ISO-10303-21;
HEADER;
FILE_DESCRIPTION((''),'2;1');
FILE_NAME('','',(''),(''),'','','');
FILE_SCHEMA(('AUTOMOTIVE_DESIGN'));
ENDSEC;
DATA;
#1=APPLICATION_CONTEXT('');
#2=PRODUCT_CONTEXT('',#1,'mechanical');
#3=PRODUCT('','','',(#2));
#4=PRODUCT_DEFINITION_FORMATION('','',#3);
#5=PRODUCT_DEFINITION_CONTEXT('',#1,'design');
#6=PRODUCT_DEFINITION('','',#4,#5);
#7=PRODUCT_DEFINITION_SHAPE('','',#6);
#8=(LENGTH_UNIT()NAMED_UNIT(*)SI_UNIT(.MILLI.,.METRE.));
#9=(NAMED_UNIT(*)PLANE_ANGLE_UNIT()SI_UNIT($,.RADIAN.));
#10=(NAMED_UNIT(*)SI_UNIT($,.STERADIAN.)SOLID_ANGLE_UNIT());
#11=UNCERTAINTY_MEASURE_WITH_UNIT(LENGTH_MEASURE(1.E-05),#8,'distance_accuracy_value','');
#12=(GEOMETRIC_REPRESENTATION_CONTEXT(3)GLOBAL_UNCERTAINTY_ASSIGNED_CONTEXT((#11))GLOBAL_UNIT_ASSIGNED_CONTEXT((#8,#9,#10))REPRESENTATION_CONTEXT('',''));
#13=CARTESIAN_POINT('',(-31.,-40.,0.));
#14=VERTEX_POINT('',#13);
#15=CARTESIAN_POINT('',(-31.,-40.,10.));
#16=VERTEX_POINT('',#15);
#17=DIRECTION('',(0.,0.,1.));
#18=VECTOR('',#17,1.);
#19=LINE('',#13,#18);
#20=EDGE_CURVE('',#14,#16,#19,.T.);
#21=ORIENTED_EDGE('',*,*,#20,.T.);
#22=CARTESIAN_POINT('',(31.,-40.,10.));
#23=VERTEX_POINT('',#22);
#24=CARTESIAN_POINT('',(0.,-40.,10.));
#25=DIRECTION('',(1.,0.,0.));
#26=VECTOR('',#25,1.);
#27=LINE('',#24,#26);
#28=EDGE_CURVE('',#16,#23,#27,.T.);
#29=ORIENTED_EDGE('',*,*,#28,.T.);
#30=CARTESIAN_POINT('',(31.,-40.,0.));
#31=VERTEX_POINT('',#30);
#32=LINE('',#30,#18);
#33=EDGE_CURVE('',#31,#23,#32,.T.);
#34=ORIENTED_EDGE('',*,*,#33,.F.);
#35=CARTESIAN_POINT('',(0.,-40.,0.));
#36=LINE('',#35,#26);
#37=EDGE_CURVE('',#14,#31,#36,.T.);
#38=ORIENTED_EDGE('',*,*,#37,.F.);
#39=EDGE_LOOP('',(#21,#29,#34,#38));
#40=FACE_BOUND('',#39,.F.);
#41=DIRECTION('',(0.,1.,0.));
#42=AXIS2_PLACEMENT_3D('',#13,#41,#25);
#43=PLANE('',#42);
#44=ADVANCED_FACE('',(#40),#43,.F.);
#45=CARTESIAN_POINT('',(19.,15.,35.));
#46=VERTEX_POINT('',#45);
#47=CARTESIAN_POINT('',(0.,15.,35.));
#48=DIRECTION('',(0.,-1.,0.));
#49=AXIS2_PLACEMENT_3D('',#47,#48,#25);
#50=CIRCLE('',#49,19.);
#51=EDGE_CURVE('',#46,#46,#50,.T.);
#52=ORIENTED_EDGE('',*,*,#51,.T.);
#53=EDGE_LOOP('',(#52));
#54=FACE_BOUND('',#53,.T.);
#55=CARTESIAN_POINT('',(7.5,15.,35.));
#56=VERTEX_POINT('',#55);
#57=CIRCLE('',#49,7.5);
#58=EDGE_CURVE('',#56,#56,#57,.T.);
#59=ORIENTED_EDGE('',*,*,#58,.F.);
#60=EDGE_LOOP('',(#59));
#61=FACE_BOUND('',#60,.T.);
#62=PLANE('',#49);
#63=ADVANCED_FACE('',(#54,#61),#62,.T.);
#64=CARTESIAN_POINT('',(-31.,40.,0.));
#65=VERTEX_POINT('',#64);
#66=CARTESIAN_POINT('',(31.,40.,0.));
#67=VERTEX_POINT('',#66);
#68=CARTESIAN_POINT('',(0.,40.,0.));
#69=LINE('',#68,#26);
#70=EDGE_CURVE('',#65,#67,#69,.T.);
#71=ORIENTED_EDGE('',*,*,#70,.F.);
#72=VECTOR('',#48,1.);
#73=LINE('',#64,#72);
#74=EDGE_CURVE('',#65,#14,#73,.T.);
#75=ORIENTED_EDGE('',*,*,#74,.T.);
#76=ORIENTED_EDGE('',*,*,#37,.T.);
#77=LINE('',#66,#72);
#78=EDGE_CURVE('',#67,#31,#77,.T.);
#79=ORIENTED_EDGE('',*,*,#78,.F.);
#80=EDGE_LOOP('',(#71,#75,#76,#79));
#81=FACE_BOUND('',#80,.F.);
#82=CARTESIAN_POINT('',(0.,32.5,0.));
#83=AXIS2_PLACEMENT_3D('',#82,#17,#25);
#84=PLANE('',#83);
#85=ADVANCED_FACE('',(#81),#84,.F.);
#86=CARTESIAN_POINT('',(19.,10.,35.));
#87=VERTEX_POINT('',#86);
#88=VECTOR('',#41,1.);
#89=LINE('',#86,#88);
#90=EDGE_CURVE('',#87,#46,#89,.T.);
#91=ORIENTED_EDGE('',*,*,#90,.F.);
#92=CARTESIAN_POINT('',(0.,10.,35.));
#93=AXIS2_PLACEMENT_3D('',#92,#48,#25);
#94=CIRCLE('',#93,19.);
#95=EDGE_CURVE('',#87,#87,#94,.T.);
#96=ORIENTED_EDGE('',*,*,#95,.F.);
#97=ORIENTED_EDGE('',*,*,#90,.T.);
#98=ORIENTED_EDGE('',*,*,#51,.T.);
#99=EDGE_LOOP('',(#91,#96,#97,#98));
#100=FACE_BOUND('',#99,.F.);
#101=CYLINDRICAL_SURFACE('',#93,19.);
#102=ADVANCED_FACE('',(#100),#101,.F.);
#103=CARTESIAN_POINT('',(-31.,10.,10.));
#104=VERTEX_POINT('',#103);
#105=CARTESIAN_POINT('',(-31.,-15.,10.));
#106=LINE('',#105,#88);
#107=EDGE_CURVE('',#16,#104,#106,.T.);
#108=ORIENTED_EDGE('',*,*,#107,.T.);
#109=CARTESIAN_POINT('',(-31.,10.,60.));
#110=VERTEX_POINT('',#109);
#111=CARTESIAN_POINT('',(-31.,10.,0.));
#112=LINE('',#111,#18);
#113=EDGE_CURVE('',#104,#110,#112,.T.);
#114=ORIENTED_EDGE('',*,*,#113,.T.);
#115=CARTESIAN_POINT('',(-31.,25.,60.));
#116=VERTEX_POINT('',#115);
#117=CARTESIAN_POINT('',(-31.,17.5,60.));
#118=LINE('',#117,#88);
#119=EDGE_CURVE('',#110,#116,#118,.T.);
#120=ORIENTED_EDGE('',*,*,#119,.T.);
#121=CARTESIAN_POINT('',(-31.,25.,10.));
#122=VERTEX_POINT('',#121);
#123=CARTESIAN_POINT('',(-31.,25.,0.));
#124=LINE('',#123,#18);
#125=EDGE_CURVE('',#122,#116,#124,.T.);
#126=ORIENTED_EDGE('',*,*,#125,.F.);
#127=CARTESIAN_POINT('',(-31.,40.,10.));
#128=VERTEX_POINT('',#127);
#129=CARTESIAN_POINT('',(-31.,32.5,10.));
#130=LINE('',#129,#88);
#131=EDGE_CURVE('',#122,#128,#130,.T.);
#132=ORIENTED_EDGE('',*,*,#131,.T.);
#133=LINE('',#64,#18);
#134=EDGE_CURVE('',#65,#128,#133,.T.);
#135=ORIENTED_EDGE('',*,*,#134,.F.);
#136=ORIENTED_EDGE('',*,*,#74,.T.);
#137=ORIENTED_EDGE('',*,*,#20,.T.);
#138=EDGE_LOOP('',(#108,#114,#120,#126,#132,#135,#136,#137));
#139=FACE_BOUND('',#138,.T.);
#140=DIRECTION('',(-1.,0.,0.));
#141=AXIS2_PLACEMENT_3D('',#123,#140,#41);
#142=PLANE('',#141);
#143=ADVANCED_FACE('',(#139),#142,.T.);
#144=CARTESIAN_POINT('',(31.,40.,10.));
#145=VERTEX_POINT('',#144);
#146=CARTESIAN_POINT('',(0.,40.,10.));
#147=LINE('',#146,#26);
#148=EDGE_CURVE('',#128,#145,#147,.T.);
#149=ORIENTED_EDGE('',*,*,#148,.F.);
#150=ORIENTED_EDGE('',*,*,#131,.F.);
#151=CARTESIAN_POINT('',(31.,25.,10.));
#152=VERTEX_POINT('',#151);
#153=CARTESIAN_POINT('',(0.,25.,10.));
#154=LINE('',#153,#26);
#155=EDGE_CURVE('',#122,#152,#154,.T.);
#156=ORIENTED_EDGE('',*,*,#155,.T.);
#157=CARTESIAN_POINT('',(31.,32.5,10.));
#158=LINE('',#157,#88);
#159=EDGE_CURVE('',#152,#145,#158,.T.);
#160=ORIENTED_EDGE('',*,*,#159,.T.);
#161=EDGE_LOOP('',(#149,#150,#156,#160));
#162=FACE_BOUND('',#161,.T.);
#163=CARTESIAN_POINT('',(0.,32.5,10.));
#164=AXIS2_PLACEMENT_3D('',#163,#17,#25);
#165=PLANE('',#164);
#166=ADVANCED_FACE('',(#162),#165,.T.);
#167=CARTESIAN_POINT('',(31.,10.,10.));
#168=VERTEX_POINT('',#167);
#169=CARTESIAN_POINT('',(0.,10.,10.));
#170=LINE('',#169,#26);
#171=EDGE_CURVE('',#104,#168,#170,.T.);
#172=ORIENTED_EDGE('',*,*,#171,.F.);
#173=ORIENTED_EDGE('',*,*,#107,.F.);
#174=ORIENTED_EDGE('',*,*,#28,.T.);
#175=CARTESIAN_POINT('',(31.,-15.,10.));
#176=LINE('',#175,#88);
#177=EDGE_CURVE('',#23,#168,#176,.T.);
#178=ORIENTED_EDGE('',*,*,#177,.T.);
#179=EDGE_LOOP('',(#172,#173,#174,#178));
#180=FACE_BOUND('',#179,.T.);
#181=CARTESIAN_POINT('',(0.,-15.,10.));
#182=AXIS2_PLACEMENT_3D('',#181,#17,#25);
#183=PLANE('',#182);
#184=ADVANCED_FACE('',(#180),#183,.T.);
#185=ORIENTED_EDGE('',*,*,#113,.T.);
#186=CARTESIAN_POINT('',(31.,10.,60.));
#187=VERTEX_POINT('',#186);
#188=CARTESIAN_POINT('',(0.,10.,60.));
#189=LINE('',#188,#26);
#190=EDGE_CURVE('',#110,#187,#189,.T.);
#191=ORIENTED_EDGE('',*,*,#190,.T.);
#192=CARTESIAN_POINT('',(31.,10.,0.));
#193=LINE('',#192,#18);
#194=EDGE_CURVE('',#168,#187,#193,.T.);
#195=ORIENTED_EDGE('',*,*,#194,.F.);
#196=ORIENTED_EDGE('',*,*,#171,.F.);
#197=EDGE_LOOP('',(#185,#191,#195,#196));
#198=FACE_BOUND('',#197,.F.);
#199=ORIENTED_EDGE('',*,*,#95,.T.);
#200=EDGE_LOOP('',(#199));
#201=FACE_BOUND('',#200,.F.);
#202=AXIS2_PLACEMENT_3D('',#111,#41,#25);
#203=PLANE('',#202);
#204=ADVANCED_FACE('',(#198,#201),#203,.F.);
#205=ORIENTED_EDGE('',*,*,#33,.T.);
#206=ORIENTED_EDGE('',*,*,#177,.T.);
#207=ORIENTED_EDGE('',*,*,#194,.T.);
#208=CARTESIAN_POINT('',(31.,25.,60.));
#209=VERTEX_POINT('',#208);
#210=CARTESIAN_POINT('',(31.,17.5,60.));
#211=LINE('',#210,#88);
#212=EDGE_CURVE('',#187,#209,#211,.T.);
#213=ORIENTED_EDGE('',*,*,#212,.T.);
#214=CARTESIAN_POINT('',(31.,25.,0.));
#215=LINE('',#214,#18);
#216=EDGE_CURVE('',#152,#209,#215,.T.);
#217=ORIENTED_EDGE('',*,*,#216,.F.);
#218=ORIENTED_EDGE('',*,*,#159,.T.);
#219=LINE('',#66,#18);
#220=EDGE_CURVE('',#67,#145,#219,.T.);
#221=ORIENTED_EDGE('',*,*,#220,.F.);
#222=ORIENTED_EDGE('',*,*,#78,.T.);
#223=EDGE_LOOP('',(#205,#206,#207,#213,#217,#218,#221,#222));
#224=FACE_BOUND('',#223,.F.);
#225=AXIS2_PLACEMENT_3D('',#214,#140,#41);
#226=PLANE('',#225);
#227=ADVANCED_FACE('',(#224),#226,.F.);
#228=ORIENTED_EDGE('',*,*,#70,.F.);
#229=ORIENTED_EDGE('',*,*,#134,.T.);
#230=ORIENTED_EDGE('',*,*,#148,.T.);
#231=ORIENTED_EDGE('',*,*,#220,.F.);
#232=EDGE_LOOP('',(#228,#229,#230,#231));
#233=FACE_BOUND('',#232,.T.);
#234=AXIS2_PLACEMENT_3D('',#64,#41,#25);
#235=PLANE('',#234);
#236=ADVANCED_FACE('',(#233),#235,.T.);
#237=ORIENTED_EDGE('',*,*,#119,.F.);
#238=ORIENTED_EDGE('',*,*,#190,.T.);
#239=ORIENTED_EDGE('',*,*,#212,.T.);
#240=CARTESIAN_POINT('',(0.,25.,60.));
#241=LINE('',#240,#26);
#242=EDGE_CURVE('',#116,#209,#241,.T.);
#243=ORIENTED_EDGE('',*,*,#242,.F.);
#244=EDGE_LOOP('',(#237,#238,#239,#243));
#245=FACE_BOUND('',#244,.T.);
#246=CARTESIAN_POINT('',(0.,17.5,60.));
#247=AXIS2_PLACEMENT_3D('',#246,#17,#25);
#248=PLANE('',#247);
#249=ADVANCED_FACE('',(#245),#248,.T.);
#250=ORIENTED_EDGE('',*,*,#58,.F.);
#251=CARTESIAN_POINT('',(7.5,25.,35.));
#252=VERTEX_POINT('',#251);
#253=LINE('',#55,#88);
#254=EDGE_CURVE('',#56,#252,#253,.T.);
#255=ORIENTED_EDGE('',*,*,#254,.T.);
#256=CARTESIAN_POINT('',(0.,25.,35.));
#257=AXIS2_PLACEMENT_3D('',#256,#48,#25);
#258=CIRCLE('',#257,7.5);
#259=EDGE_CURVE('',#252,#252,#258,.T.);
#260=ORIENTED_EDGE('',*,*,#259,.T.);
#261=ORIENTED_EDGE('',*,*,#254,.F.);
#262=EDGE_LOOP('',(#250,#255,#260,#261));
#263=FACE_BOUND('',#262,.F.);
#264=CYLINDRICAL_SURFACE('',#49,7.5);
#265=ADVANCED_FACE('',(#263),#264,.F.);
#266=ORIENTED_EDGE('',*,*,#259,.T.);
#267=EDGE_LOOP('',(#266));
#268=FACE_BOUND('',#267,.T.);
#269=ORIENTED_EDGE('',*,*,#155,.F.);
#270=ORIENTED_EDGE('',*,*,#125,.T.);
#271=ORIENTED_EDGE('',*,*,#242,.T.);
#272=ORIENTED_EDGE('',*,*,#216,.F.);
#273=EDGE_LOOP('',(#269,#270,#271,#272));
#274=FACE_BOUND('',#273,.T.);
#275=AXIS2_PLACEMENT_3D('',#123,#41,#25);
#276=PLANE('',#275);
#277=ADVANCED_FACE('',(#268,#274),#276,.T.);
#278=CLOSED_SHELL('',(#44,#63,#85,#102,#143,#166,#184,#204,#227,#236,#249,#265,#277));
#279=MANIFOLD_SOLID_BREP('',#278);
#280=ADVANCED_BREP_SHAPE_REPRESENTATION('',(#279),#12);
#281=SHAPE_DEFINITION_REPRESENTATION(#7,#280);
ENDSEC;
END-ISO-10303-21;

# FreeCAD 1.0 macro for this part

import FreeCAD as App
import Part
import Sketcher

V = App.Vector
Q = App.Units.Quantity

doc = App.newDocument("Part")
body = doc.addObject("PartDesign::Body", "Body")

# Sketch on XY plane
sketch1 = body.newObject("Sketcher::SketchObject", "Sketch")
sketch1.AttachmentSupport = (doc.getObject("XY_Plane"), [""])
sketch1.MapMode = "FlatFace"
sketch1.addGeometry(Part.LineSegment(V(-31, 25, 0), V(-31, 10, 0)), False)
sketch1.addGeometry(Part.LineSegment(V(-31, 10, 0), V(31, 10, 0)), False)
sketch1.addGeometry(Part.LineSegment(V(31, 10, 0), V(31, 25, 0)), False)
sketch1.addGeometry(Part.LineSegment(V(31, 25, 0), V(-31, 25, 0)), False)
sketch1.addConstraint(Sketcher.Constraint("Coincident", 0, 2, 1, 1))
sketch1.addConstraint(Sketcher.Constraint("Coincident", 1, 2, 2, 1))
sketch1.addConstraint(Sketcher.Constraint("Coincident", 2, 2, 3, 1))
sketch1.addConstraint(Sketcher.Constraint("Coincident", 3, 2, 0, 1))
sketch1.addConstraint(Sketcher.Constraint("Vertical", 0))
sketch1.addConstraint(Sketcher.Constraint("Horizontal", 1))
sketch1.addConstraint(Sketcher.Constraint("Vertical", 2))
sketch1.addConstraint(Sketcher.Constraint("Horizontal", 3))
sketch1.addConstraint(Sketcher.Constraint("DistanceX", 1, 1, 1, 2, Q("62 mm")))
sketch1.addConstraint(Sketcher.Constraint("DistanceY", 0, 2, 0, 1, Q("15 mm")))
sketch1.addConstraint(Sketcher.Constraint("DistanceX", 0, 2, -1, 1, Q("31 mm")))
sketch1.addConstraint(Sketcher.Constraint("DistanceY", -1, 1, 0, 2, Q("10 mm")))
pad1 = body.newObject("PartDesign::Pad", "Pad")
pad1.Profile = sketch1
pad1.Length = 60

# Sketch on XY plane
sketch2 = body.newObject("Sketcher::SketchObject", "Sketch001")
sketch2.AttachmentSupport = (doc.getObject("XY_Plane"), [""])
sketch2.MapMode = "FlatFace"
sketch2.addGeometry(Part.LineSegment(V(-31, 40, 0), V(-31, 25, 0)), False)
sketch2.addGeometry(Part.LineSegment(V(-31, 25, 0), V(31, 25, 0)), False)
sketch2.addGeometry(Part.LineSegment(V(31, 25, 0), V(31, 40, 0)), False)
sketch2.addGeometry(Part.LineSegment(V(31, 40, 0), V(-31, 40, 0)), False)
sketch2.addGeometry(Part.LineSegment(V(-31, 10, 0), V(-31, -40, 0)), False)
sketch2.addGeometry(Part.LineSegment(V(-31, -40, 0), V(31, -40, 0)), False)
sketch2.addGeometry(Part.LineSegment(V(31, -40, 0), V(31, 10, 0)), False)
sketch2.addGeometry(Part.LineSegment(V(31, 10, 0), V(-31, 10, 0)), False)
sketch2.addConstraint(Sketcher.Constraint("Coincident", 0, 2, 1, 1))
sketch2.addConstraint(Sketcher.Constraint("Coincident", 1, 2, 2, 1))
sketch2.addConstraint(Sketcher.Constraint("Coincident", 2, 2, 3, 1))
sketch2.addConstraint(Sketcher.Constraint("Coincident", 3, 2, 0, 1))
sketch2.addConstraint(Sketcher.Constraint("Coincident", 4, 2, 5, 1))
sketch2.addConstraint(Sketcher.Constraint("Coincident", 5, 2, 6, 1))
sketch2.addConstraint(Sketcher.Constraint("Coincident", 6, 2, 7, 1))
sketch2.addConstraint(Sketcher.Constraint("Coincident", 7, 2, 4, 1))
sketch2.addConstraint(Sketcher.Constraint("Vertical", 0))
sketch2.addConstraint(Sketcher.Constraint("Horizontal", 1))
sketch2.addConstraint(Sketcher.Constraint("Vertical", 2))
sketch2.addConstraint(Sketcher.Constraint("Horizontal", 3))
sketch2.addConstraint(Sketcher.Constraint("Vertical", 4))
sketch2.addConstraint(Sketcher.Constraint("Horizontal", 5))
sketch2.addConstraint(Sketcher.Constraint("Vertical", 6))
sketch2.addConstraint(Sketcher.Constraint("Horizontal", 7))
sketch2.addConstraint(Sketcher.Constraint("Symmetric", 2, 2, 4, 2, -1, 1))
sketch2.addConstraint(Sketcher.Constraint("Vertical", 3, 2, 4, 2))
sketch2.addConstraint(Sketcher.Constraint("Vertical", 2, 2, 5, 2))
sketch2.addConstraint(Sketcher.Constraint("DistanceX", 1, 1, 1, 2, Q("62 mm")))
sketch2.addConstraint(Sketcher.Constraint("DistanceY", 0, 2, 0, 1, Q("15 mm")))
sketch2.addConstraint(Sketcher.Constraint("DistanceY", 4, 2, 4, 1, Q("50 mm")))
sketch2.addConstraint(Sketcher.Constraint("DistanceY", -1, 1, 0, 2, Q("25 mm")))
pad2 = body.newObject("PartDesign::Pad", "Pad001")
pad2.Profile = sketch2
pad2.Length = 10

# Sketch on XZ plane
sketch3 = body.newObject("Sketcher::SketchObject", "Sketch002")
sketch3.AttachmentSupport = (doc.getObject("XZ_Plane"), [""])
sketch3.MapMode = "FlatFace"
sketch3.AttachmentOffset = App.Placement(V(0, 0, -10), App.Rotation())
sketch3.addGeometry(Part.Circle(V(0, 35, 0), V(0, 0, 1), 19), False)
sketch3.addConstraint(Sketcher.Constraint("PointOnObject", 0, 3, -2))
sketch3.addConstraint(Sketcher.Constraint("Diameter", 0, Q("38 mm")))
sketch3.addConstraint(Sketcher.Constraint("DistanceY", -1, 1, 0, 3, Q("35 mm")))
pocket1 = body.newObject("PartDesign::Pocket", "Pocket")
pocket1.Profile = sketch3
pocket1.Length = 5

# Sketch on XZ plane
sketch4 = body.newObject("Sketcher::SketchObject", "Sketch003")
sketch4.AttachmentSupport = (doc.getObject("XZ_Plane"), [""])
sketch4.MapMode = "FlatFace"
sketch4.AttachmentOffset = App.Placement(V(0, 0, -15), App.Rotation())
sketch4.addGeometry(Part.Circle(V(0, 35, 0), V(0, 0, 1), 8), False)
sketch4.addConstraint(Sketcher.Constraint("PointOnObject", 0, 3, -2))
sketch4.addConstraint(Sketcher.Constraint("Diameter", 0, Q("15 mm")))
sketch4.addConstraint(Sketcher.Constraint("DistanceY", -1, 1, 0, 3, Q("35 mm")))
pocket2 = body.newObject("PartDesign::Pocket", "Pocket001")
pocket2.Profile = sketch4
pocket2.Type = "ThroughAll"

doc.recompute()
